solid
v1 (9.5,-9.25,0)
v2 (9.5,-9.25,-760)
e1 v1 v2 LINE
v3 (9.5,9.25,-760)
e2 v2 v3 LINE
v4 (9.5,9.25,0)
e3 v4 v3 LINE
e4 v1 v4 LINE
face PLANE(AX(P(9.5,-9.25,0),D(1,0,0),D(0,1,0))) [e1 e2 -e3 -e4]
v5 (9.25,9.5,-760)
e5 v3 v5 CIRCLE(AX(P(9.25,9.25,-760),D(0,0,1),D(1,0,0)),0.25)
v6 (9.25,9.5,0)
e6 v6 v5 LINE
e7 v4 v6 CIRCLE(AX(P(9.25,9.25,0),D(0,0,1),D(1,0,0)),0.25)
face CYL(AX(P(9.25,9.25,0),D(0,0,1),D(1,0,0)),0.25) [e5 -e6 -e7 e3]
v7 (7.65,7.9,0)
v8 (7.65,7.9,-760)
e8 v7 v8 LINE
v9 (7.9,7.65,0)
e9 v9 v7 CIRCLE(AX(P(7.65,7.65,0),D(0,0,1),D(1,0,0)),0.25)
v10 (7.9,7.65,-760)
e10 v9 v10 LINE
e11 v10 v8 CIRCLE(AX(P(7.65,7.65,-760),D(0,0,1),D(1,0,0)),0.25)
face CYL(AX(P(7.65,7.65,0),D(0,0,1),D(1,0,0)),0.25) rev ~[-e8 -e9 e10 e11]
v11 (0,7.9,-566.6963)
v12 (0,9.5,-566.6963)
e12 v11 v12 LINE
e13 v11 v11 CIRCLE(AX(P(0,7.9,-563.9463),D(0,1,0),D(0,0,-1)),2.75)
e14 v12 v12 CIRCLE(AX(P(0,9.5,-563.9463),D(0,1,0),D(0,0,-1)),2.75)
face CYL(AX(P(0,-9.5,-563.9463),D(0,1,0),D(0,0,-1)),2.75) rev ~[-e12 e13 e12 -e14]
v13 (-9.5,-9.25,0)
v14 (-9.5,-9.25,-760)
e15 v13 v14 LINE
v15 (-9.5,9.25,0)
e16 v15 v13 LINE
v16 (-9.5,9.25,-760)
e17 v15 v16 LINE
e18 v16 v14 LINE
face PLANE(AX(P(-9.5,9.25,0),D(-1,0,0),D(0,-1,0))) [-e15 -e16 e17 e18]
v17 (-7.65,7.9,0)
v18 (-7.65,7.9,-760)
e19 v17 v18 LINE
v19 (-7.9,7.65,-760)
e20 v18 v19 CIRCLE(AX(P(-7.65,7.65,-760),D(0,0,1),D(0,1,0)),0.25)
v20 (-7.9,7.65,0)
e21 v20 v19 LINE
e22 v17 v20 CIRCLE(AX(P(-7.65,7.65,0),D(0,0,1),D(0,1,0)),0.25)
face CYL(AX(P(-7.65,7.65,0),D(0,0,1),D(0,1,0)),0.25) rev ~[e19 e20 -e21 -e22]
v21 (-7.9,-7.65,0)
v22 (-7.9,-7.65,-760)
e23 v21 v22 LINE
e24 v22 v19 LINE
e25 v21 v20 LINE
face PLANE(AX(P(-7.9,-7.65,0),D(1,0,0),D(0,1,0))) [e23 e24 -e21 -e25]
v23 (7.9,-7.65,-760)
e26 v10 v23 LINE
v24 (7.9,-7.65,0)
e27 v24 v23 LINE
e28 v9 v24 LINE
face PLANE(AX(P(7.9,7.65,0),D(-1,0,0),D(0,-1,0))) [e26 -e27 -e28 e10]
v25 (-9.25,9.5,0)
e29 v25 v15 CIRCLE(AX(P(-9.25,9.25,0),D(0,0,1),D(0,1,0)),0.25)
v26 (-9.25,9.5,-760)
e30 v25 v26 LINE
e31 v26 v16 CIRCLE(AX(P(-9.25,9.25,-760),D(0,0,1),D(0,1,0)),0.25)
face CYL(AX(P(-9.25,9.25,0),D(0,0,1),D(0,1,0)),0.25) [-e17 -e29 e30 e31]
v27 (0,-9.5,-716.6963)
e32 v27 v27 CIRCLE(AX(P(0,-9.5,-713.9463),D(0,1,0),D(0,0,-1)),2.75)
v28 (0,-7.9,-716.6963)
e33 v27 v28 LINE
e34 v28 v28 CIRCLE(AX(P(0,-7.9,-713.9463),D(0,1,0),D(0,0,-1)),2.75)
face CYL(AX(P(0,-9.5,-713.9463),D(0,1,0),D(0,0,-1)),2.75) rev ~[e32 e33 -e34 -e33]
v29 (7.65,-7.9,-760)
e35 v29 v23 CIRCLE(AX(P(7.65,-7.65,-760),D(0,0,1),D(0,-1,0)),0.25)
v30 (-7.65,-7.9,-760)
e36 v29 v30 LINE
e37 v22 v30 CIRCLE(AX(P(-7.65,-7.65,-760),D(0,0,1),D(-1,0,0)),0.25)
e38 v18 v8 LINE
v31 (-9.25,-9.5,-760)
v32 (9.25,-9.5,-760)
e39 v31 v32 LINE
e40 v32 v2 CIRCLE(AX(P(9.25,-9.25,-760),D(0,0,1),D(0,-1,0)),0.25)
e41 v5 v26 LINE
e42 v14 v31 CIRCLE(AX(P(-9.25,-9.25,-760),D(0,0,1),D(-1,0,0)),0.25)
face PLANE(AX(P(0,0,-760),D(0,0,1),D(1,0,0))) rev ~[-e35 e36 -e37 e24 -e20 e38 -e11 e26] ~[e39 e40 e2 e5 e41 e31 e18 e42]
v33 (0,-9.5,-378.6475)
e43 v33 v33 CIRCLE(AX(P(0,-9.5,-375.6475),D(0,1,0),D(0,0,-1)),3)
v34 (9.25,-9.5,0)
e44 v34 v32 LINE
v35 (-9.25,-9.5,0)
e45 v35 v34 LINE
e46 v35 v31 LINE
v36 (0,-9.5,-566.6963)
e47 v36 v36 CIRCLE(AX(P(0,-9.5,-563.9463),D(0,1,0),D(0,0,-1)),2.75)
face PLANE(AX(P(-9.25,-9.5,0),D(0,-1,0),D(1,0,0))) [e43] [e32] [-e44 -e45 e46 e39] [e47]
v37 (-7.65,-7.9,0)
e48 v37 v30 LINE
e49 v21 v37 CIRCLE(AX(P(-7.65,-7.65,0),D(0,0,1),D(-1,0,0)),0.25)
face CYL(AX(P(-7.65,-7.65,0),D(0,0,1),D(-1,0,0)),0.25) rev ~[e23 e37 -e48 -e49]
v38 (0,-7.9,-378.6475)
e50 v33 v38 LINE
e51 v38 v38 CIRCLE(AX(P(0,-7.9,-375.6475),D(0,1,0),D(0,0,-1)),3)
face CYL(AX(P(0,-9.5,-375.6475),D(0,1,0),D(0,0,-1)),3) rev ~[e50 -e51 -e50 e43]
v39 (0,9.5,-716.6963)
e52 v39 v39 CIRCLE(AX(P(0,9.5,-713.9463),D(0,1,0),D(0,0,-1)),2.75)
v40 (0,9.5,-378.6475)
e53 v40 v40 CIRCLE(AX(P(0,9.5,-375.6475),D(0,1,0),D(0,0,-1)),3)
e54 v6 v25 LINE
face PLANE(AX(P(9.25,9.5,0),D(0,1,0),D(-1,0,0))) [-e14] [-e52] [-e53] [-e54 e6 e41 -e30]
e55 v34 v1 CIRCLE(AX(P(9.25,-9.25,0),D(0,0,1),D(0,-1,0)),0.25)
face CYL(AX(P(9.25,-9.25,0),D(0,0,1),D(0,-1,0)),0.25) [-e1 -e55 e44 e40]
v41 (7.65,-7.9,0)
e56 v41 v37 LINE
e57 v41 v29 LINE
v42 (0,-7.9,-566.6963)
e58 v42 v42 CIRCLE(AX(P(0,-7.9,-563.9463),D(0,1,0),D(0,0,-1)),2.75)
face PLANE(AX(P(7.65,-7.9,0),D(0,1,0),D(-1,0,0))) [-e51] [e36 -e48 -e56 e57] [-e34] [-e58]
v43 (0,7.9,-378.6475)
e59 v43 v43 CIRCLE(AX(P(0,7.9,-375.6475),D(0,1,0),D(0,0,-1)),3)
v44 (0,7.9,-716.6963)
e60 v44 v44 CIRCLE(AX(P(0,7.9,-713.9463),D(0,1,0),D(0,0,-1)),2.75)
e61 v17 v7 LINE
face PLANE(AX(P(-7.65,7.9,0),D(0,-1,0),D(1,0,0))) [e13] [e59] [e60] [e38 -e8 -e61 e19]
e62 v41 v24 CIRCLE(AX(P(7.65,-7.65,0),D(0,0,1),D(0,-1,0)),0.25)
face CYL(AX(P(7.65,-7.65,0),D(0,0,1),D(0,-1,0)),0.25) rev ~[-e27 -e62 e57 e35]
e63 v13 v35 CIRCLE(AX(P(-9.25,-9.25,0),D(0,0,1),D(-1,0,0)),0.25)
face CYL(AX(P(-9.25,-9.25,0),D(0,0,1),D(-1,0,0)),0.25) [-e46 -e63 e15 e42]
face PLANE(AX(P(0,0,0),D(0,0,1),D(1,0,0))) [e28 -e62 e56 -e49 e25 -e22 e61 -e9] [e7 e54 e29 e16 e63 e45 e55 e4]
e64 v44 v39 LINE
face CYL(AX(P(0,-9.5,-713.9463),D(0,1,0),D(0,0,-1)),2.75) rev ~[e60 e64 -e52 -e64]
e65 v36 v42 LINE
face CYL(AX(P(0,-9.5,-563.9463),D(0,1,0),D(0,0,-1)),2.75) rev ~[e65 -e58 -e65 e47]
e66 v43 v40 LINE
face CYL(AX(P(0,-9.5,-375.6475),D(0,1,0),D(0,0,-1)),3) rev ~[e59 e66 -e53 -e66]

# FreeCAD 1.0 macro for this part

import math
import FreeCAD as App
import Part
import Sketcher

doc = App.newDocument("Part")
body = doc.addObject("PartDesign::Body", "Body")

sketch1 = body.newObject("Sketcher::SketchObject", "Sketch")
sketch1.AttachmentSupport = (doc.getObject("XY_Plane"), [""])
sketch1.MapMode = "FlatFace"
sketch1.addGeometry([
    Part.ArcOfCircle(Part.Circle(App.Vector(-9.25, -9.25, 0), App.Vector(0, 0, 1), 0.25), math.radians(180), math.radians(270)),
    Part.LineSegment(App.Vector(-9.25, -9.5, 0), App.Vector(9.25, -9.5, 0)),
    Part.ArcOfCircle(Part.Circle(App.Vector(9.25, -9.25, 0), App.Vector(0, 0, 1), 0.25), math.radians(-90), math.radians(0)),
    Part.LineSegment(App.Vector(9.5, -9.25, 0), App.Vector(9.5, 9.25, 0)),
    Part.ArcOfCircle(Part.Circle(App.Vector(9.25, 9.25, 0), App.Vector(0, 0, 1), 0.25), math.radians(0), math.radians(90)),
    Part.LineSegment(App.Vector(9.25, 9.5, 0), App.Vector(-9.25, 9.5, 0)),
    Part.ArcOfCircle(Part.Circle(App.Vector(-9.25, 9.25, 0), App.Vector(0, 0, 1), 0.25), math.radians(90), math.radians(180)),
    Part.LineSegment(App.Vector(-9.5, 9.25, 0), App.Vector(-9.5, -9.25, 0)),
    Part.ArcOfCircle(Part.Circle(App.Vector(-7.65, 7.65, 0), App.Vector(0, 0, 1), 0.25), math.radians(90), math.radians(180)),
    Part.LineSegment(App.Vector(-7.65, 7.9, 0), App.Vector(7.65, 7.9, 0)),
    Part.ArcOfCircle(Part.Circle(App.Vector(7.65, 7.65, 0), App.Vector(0, 0, 1), 0.25), math.radians(0), math.radians(90)),
    Part.LineSegment(App.Vector(7.9, 7.65, 0), App.Vector(7.9, -7.65, 0)),
    Part.ArcOfCircle(Part.Circle(App.Vector(7.65, -7.65, 0), App.Vector(0, 0, 1), 0.25), math.radians(-90), math.radians(0)),
    Part.LineSegment(App.Vector(7.65, -7.9, 0), App.Vector(-7.65, -7.9, 0)),
    Part.ArcOfCircle(Part.Circle(App.Vector(-7.65, -7.65, 0), App.Vector(0, 0, 1), 0.25), math.radians(180), math.radians(270)),
    Part.LineSegment(App.Vector(-7.9, -7.65, 0), App.Vector(-7.9, 7.65, 0)),
], False)
sketch1.addConstraint([
    Sketcher.Constraint("Tangent", 0, 2, 1, 1),
    Sketcher.Constraint("Tangent", 1, 2, 2, 1),
    Sketcher.Constraint("Tangent", 2, 2, 3, 1),
    Sketcher.Constraint("Tangent", 3, 2, 4, 1),
    Sketcher.Constraint("Tangent", 4, 2, 5, 1),
    Sketcher.Constraint("Tangent", 5, 2, 6, 1),
    Sketcher.Constraint("Tangent", 6, 2, 7, 1),
    Sketcher.Constraint("Tangent", 7, 2, 0, 1),
    Sketcher.Constraint("Tangent", 8, 1, 9, 1),
    Sketcher.Constraint("Tangent", 9, 2, 10, 2),
    Sketcher.Constraint("Tangent", 10, 1, 11, 1),
    Sketcher.Constraint("Tangent", 11, 2, 12, 2),
    Sketcher.Constraint("Tangent", 12, 1, 13, 1),
    Sketcher.Constraint("Tangent", 13, 2, 14, 2),
    Sketcher.Constraint("Tangent", 14, 1, 15, 1),
    Sketcher.Constraint("Tangent", 15, 2, 8, 2),
    Sketcher.Constraint("Horizontal", 1),
    Sketcher.Constraint("Vertical", 3),
    Sketcher.Constraint("Horizontal", 5),
    Sketcher.Constraint("Vertical", 7),
    Sketcher.Constraint("Horizontal", 9),
    Sketcher.Constraint("Vertical", 11),
    Sketcher.Constraint("Horizontal", 13),
    Sketcher.Constraint("Vertical", 15),
    Sketcher.Constraint("Equal", 0, 2),
    Sketcher.Constraint("Equal", 2, 4),
    Sketcher.Constraint("Equal", 4, 6),
    Sketcher.Constraint("Equal", 6, 8),
    Sketcher.Constraint("Equal", 8, 10),
    Sketcher.Constraint("Equal", 10, 12),
    Sketcher.Constraint("Equal", 12, 14),
    Sketcher.Constraint("Symmetric", 0, 3, 4, 3, -1, 1),
    Sketcher.Constraint("Symmetric", 8, 3, 12, 3, -1, 1),
    Sketcher.Constraint("Equal", 5, 3),
    Sketcher.Constraint("Equal", 13, 11),
    Sketcher.Constraint("Radius", 0, 0.25),
    Sketcher.Constraint("DistanceX", 6, 3, 8, 3, 1.6),
    Sketcher.Constraint("DistanceX", 1, 1, 1, 2, 18.5),
])
pad1 = body.newObject("PartDesign::Pad", "Pad")
pad1.Profile = sketch1
pad1.Length = 760
pad1.Reversed = True

sketch2 = body.newObject("Sketcher::SketchObject", "Sketch001")
sketch2.AttachmentSupport = (doc.getObject("XZ_Plane"), [""])
sketch2.MapMode = "FlatFace"
sketch2.AttachmentOffset = App.Placement(App.Vector(0, 0, 9.5), App.Rotation())
sketch2.addGeometry([
    Part.Circle(App.Vector(0, -563.9, 0), App.Vector(0, 0, 1), 2.8),
    Part.Circle(App.Vector(0, -713.9, 0), App.Vector(0, 0, 1), 2.8),
], False)
sketch2.addConstraint([
    Sketcher.Constraint("Equal", 0, 1),
    Sketcher.Constraint("PointOnObject", 0, 3, -2),
    Sketcher.Constraint("PointOnObject", 1, 3, -2),
    Sketcher.Constraint("Diameter", 0, 5.5),
    Sketcher.Constraint("DistanceY", 1, 3, 0, 3, 150.0),
    Sketcher.Constraint("DistanceY", 0, 3, -1, 1, 563.9463),
])
doc.recompute()
hole = body.newObject("PartDesign::Hole", "Hole")
hole.Profile = sketch2
hole.ThreadType = "None"
hole.Diameter = 5.5
hole.DepthType = "ThroughAll"

sketch3 = body.newObject("Sketcher::SketchObject", "Sketch002")
sketch3.AttachmentSupport = (doc.getObject("XZ_Plane"), [""])
sketch3.MapMode = "FlatFace"
sketch3.AttachmentOffset = App.Placement(App.Vector(0, 0, 9.5), App.Rotation())
sketch3.addGeometry(Part.Circle(App.Vector(0, -375.6, 0), App.Vector(0, 0, 1), 3), False)
sketch3.addConstraint([
    Sketcher.Constraint("PointOnObject", 0, 3, -2),
    Sketcher.Constraint("Diameter", 0, 6.0),
    Sketcher.Constraint("DistanceY", 0, 3, -1, 1, 375.6475),
])
doc.recompute()
hole2 = body.newObject("PartDesign::Hole", "Hole001")
hole2.Profile = sketch3
hole2.ThreadType = "None"
hole2.Diameter = 6
hole2.DepthType = "ThroughAll"

doc.recompute()
